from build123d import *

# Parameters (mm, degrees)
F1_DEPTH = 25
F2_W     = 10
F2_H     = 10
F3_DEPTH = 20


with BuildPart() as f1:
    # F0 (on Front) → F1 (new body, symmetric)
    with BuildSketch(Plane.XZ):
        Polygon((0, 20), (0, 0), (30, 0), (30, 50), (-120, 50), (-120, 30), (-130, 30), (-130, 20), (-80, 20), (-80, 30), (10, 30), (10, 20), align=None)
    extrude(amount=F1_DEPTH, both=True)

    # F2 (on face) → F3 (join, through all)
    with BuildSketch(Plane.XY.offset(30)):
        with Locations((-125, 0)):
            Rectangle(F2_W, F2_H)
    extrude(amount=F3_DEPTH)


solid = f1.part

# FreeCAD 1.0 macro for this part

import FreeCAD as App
import Part
import Sketcher


def add_polygon(sketch, points):
    """Adds a closed chain of lines whose ends are joined by coincident constraints."""
    first, n = sketch.GeometryCount, len(points)
    for a, b in zip(points, points[1:] + points[:1]):
        sketch.addGeometry(Part.LineSegment(App.Vector(*a, 0), App.Vector(*b, 0)), False)
    for i in range(n):
        sketch.addConstraint(Sketcher.Constraint("Coincident", first + i, 2, first + (i + 1) % n, 1))

doc = App.newDocument("Part")
body = doc.addObject("PartDesign::Body", "Body")

# Sketch on XZ plane
sketch1 = body.newObject("Sketcher::SketchObject", "Sketch")
sketch1.AttachmentSupport = (doc.getObject("XZ_Plane"), [""])
sketch1.MapMode = "FlatFace"
add_polygon(sketch1, [(0, 20), (0, 0), (30, 0), (30, 50), (-120, 50), (-120, 30), (-130, 30), (-130, 20), (-80, 20), (-80, 30), (10, 30), (10, 20)])  # lines 0-11
sketch1.addConstraint([
    Sketcher.Constraint("Vertical", 0),
    Sketcher.Constraint("Horizontal", 1),
    Sketcher.Constraint("Vertical", 2),
    Sketcher.Constraint("Horizontal", 3),
    Sketcher.Constraint("Vertical", 4),
    Sketcher.Constraint("Horizontal", 5),
    Sketcher.Constraint("Vertical", 6),
    Sketcher.Constraint("Horizontal", 7),
    Sketcher.Constraint("Vertical", 8),
    Sketcher.Constraint("Horizontal", 9),
    Sketcher.Constraint("Vertical", 10),
    Sketcher.Constraint("Horizontal", 11),
    Sketcher.Constraint("Coincident", 0, 2, -1, 1),
    Sketcher.Constraint("Horizontal", 5, 2, 8, 2),
    Sketcher.Constraint("Horizontal", 7, 2, 10, 2),
    Sketcher.Constraint("Equal", 5, 11),
    Sketcher.Constraint("Equal", 7, 2),
    Sketcher.Constraint("Equal", 0, 4),
    Sketcher.Constraint("Equal", 11, 6),
    Sketcher.Constraint("DistanceX", 1, 1, 1, 2, 30.0),
    Sketcher.Constraint("DistanceX", 3, 2, 3, 1, 150.0),
    Sketcher.Constraint("DistanceX", 5, 2, 5, 1, 10.0),
    Sketcher.Constraint("DistanceX", 7, 1, 7, 2, 50.0),
])
pad1 = body.newObject("PartDesign::Pad", "Pad")
pad1.Profile = sketch1
pad1.Length = 50
pad1.Midplane = True

# Sketch on XY plane
sketch2 = body.newObject("Sketcher::SketchObject", "Sketch001")
sketch2.AttachmentSupport = (doc.getObject("XY_Plane"), [""])
sketch2.MapMode = "FlatFace"
sketch2.AttachmentOffset = App.Placement(App.Vector(0, 0, 30), App.Rotation())
add_polygon(sketch2, [(-130, 5), (-130, -5), (-120, -5), (-120, 5)])  # lines 0-3
sketch2.addConstraint([
    Sketcher.Constraint("Vertical", 0),
    Sketcher.Constraint("Horizontal", 1),
    Sketcher.Constraint("Vertical", 2),
    Sketcher.Constraint("Horizontal", 3),
    Sketcher.Constraint("Equal", 3, 0),
    Sketcher.Constraint("DistanceX", 1, 1, 1, 2, 10.0),
    Sketcher.Constraint("DistanceX", 0, 2, -1, 1, 130.0),
    Sketcher.Constraint("DistanceY", 0, 2, -1, 1, 5.0),
])
pad2 = body.newObject("PartDesign::Pad", "Pad001")
pad2.Profile = sketch2
pad2.Length = 20

doc.recompute()
